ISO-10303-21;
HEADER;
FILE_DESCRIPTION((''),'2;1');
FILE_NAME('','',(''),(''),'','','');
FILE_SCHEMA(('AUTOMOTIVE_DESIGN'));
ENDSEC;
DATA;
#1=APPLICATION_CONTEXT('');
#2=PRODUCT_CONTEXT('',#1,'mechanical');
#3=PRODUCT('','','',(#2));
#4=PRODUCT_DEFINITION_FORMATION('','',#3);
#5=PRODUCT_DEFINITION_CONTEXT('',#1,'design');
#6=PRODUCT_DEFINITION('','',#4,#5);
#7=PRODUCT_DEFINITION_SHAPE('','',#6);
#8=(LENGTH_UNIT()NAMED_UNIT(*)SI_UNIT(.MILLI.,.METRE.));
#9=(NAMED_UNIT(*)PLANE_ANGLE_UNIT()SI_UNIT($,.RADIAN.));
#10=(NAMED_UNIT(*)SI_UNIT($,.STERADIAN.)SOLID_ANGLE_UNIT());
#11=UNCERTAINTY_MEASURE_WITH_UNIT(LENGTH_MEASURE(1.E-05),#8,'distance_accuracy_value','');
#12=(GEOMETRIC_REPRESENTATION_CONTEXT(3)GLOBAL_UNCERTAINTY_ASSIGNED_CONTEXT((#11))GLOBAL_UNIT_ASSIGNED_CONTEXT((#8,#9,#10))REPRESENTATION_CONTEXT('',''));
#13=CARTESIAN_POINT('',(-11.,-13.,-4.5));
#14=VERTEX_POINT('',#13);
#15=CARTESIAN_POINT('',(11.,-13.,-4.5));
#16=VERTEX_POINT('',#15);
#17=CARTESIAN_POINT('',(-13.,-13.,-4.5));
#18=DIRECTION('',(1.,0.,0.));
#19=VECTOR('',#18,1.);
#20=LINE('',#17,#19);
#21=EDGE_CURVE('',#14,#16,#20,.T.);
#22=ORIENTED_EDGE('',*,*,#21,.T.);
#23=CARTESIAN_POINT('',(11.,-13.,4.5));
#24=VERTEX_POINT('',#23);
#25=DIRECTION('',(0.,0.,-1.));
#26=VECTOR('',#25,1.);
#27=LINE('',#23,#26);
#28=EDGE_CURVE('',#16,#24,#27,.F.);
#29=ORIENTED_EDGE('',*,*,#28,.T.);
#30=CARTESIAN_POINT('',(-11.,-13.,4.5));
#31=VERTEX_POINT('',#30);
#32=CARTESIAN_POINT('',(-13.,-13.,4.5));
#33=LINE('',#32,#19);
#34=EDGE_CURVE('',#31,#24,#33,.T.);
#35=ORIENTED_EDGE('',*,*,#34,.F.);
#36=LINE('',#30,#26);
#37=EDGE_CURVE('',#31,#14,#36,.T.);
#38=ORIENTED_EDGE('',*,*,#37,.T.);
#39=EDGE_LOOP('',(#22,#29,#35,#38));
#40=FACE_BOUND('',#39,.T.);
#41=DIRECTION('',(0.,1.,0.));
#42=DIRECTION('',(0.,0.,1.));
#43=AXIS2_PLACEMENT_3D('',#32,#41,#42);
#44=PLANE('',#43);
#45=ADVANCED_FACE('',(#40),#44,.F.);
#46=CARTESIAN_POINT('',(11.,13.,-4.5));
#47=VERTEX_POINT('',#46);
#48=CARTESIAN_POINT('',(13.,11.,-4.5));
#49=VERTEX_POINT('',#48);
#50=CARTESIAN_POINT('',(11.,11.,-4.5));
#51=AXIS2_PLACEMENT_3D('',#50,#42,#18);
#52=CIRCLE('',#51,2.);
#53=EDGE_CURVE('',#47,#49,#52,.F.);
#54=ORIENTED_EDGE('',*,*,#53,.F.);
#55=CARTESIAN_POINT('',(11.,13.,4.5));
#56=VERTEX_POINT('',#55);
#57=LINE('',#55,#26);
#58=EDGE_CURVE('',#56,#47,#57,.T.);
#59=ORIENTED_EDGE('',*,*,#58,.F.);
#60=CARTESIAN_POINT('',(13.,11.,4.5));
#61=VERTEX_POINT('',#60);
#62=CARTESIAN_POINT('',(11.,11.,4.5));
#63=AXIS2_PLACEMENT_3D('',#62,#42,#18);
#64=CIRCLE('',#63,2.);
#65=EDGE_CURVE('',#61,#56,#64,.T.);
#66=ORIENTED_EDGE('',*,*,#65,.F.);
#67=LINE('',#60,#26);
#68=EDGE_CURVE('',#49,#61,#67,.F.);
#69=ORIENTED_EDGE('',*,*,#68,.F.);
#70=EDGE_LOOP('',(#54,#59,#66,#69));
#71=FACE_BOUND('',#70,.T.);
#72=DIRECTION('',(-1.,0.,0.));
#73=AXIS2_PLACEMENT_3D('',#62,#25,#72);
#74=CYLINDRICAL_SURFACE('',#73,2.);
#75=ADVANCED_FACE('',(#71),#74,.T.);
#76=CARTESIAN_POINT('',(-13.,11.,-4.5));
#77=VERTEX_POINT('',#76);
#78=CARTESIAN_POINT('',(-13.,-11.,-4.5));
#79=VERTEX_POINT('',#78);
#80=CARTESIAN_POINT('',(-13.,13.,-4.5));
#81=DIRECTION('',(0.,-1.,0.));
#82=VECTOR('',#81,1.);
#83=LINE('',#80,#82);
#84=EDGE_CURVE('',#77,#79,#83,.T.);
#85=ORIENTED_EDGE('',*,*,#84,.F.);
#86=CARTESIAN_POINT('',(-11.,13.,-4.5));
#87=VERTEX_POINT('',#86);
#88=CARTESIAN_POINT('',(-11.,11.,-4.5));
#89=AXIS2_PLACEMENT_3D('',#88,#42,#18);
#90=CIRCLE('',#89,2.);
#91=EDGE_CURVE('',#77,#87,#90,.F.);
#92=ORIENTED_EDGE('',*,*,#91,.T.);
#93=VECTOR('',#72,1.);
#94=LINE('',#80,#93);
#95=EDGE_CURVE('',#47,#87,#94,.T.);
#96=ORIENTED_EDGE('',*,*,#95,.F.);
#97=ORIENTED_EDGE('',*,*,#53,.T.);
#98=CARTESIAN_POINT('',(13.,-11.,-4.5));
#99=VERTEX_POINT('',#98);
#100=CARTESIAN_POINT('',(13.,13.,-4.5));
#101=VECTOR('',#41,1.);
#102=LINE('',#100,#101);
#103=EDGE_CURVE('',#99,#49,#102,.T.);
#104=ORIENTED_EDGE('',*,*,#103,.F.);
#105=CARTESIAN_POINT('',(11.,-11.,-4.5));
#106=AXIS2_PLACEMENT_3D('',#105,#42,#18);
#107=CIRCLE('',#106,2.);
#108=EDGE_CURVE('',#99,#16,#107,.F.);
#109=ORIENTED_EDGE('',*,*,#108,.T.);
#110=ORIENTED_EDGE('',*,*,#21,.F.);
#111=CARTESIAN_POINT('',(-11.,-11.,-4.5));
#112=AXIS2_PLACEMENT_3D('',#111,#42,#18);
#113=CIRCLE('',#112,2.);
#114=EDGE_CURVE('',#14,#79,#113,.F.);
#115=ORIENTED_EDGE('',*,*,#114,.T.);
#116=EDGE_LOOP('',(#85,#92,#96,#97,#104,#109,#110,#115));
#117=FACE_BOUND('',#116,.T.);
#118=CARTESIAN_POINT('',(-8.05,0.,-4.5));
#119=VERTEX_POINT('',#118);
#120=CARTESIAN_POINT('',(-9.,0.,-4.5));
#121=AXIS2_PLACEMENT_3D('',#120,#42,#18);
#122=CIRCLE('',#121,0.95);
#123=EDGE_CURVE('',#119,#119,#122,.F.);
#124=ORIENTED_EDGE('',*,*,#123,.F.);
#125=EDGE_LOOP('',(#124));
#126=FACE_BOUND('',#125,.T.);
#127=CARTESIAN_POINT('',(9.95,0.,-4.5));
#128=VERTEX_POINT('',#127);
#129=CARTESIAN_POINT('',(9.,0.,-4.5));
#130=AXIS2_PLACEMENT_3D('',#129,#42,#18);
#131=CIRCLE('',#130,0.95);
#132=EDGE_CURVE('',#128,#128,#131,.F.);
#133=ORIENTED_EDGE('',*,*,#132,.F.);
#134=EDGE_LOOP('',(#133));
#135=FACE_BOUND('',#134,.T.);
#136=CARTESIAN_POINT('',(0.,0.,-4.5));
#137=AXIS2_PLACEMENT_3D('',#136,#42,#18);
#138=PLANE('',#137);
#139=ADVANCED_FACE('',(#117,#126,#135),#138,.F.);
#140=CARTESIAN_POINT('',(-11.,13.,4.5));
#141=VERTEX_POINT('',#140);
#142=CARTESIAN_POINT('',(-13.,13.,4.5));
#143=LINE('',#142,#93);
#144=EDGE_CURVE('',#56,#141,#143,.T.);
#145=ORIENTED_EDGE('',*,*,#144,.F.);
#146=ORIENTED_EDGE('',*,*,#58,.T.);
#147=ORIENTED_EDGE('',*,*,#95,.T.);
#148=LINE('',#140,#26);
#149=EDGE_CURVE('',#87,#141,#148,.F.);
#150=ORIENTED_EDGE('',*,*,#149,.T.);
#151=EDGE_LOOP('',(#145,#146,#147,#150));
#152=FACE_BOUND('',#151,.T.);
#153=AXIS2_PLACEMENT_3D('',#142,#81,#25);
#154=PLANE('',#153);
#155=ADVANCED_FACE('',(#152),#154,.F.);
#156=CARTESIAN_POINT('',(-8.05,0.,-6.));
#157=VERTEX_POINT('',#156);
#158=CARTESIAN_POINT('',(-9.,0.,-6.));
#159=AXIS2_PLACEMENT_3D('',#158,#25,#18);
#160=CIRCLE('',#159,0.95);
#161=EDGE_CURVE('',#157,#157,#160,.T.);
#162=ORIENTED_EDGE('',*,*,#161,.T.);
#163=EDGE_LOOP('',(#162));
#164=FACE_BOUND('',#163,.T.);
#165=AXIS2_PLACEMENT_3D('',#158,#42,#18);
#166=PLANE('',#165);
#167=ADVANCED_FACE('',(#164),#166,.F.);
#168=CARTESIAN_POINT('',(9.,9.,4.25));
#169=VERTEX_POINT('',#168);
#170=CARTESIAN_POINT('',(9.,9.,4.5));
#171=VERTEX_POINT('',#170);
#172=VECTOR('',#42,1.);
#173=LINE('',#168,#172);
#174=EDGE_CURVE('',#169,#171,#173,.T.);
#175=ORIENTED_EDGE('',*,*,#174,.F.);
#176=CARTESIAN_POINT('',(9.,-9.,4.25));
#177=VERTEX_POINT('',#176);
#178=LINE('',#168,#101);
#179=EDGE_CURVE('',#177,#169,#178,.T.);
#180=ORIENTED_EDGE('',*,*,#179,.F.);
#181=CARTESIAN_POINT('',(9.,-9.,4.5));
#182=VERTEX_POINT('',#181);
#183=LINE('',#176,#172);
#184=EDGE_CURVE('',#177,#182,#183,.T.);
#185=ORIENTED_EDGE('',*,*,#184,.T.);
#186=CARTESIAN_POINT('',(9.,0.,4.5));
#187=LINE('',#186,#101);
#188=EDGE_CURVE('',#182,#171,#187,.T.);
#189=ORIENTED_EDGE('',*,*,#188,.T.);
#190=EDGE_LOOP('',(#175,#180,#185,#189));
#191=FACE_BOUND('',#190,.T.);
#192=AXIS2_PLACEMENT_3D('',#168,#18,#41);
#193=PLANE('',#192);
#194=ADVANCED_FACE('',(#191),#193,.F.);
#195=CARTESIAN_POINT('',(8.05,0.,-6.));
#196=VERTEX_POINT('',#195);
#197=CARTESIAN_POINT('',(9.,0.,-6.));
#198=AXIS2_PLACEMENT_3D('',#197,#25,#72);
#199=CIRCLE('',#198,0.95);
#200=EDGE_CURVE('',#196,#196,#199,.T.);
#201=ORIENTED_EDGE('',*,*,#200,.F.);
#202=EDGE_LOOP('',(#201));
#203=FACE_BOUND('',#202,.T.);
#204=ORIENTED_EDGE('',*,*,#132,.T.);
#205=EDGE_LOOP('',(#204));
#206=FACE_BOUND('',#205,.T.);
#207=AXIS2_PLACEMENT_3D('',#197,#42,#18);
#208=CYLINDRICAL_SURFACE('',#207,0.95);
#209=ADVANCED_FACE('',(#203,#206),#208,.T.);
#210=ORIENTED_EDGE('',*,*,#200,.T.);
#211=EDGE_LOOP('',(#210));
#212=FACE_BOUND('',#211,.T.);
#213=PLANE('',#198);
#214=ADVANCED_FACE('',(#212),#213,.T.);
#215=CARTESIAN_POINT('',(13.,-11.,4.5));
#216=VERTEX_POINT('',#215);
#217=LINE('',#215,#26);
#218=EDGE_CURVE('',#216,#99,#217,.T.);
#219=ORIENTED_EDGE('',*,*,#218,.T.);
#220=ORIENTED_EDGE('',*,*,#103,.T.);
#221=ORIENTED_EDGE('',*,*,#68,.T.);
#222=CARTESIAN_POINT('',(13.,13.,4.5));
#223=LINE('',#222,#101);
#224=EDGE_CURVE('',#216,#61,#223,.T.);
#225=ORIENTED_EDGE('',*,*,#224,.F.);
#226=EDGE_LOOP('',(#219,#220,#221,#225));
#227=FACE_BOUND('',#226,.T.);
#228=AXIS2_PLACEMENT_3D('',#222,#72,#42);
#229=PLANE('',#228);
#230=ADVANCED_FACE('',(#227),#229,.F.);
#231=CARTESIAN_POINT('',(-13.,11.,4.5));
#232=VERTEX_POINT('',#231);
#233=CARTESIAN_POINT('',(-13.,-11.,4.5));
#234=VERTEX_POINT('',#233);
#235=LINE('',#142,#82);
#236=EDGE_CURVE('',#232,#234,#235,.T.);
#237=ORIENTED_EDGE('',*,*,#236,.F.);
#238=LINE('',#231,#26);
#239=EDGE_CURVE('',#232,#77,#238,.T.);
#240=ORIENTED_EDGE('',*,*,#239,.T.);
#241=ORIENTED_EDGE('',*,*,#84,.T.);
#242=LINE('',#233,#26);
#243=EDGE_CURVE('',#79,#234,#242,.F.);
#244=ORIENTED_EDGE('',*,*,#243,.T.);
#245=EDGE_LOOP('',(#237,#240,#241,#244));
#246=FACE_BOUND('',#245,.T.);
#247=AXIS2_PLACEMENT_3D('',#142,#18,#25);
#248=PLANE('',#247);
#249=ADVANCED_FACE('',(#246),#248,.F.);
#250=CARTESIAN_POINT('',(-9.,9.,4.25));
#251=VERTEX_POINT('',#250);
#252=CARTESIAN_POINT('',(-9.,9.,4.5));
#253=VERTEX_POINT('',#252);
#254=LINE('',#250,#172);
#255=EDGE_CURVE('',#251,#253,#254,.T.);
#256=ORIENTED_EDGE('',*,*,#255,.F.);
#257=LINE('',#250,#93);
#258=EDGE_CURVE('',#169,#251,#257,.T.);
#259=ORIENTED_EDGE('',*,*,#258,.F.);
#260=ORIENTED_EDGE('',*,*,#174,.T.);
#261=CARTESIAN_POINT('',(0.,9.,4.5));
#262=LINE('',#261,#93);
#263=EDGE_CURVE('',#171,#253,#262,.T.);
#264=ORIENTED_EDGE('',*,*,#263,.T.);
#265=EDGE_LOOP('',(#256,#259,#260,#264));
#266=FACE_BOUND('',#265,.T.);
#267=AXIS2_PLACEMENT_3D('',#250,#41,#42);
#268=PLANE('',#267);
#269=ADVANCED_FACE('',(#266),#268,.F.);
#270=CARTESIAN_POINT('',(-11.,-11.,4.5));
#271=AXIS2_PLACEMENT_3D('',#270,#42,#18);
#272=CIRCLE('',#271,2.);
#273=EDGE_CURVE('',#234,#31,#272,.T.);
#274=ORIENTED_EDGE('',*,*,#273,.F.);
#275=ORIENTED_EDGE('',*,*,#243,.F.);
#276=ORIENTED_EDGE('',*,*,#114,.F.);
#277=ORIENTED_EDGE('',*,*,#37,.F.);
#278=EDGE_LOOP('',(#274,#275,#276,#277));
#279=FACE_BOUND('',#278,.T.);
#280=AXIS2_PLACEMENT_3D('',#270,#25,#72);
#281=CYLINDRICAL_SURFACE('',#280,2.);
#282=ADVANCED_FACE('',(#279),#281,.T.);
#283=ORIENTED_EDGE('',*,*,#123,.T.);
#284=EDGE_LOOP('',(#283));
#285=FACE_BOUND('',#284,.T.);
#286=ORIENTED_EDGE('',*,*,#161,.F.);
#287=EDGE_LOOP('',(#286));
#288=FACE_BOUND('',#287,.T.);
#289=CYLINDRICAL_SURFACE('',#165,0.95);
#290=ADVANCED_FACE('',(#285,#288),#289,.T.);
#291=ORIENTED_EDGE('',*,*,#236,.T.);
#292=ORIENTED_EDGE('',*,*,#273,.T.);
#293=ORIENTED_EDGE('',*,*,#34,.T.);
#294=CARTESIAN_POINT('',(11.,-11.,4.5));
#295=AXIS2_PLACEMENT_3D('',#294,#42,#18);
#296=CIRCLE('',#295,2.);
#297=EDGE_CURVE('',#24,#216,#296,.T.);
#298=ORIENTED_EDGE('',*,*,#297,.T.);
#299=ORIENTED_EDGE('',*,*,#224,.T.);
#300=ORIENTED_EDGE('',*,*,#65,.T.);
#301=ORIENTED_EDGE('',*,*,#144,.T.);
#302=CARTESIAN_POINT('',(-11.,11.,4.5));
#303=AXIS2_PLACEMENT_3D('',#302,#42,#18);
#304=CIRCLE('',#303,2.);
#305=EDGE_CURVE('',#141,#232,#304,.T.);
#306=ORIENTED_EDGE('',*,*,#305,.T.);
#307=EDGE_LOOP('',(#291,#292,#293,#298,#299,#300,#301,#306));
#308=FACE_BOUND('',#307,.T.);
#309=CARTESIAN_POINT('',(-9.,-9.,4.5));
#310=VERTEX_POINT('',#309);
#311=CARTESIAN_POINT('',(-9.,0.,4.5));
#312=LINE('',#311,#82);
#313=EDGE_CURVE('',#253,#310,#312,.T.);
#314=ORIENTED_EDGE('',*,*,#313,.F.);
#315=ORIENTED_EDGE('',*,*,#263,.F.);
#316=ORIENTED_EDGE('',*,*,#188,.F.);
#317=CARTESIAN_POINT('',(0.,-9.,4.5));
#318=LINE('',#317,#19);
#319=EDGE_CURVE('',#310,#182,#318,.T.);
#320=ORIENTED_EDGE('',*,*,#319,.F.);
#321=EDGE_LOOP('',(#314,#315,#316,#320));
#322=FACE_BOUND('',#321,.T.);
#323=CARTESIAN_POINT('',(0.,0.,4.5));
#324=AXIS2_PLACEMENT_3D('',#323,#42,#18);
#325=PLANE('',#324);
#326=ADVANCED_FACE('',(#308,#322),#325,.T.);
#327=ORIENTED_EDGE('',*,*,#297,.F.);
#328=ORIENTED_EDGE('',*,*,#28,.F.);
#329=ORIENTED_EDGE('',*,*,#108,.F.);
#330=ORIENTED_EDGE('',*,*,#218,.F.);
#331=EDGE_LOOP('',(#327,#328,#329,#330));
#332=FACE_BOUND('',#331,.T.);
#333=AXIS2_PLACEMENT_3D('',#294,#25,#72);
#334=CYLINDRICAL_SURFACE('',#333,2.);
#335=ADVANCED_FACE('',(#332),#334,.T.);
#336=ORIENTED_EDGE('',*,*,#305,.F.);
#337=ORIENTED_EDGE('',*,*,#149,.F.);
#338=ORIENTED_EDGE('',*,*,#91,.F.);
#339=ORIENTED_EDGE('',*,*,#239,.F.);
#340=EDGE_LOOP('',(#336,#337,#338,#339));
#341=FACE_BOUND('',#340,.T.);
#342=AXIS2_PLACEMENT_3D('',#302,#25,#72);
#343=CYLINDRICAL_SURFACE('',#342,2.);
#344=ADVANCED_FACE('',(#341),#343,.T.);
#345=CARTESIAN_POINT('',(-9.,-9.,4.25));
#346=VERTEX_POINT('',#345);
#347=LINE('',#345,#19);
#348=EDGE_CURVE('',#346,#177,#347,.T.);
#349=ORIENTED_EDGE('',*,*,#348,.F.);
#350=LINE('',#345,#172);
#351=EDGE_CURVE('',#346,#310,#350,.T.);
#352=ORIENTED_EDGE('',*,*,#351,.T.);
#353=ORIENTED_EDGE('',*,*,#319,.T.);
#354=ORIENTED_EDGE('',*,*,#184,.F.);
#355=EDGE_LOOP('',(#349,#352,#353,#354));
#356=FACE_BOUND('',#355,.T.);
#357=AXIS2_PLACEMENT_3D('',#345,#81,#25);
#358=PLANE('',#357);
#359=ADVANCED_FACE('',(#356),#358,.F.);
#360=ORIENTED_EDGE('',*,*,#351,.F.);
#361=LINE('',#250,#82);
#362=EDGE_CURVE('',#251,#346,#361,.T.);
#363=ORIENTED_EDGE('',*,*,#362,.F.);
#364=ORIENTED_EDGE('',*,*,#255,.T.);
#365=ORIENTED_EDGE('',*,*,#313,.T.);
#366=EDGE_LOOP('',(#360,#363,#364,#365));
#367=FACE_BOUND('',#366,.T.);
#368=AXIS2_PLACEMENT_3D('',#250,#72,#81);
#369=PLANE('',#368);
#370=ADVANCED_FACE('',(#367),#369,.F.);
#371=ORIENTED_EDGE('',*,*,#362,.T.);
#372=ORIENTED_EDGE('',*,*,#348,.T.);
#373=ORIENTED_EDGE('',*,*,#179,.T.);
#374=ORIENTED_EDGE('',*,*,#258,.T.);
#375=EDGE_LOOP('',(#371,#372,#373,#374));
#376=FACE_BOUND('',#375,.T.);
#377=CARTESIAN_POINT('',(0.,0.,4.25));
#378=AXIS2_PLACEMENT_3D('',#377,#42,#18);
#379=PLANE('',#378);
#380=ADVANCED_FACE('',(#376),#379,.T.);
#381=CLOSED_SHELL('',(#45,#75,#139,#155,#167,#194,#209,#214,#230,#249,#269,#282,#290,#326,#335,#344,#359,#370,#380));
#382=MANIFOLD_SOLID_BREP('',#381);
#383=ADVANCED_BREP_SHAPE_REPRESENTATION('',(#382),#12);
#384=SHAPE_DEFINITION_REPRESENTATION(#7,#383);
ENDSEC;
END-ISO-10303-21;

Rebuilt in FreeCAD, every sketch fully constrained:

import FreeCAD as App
import Part
import Sketcher
from FreeCAD import Vector
Q = App.Units.Quantity


def edges_at(feature, points):
    """Names of the edges that pass closest to the given points."""
    edges = feature.Shape.Edges
    near = lambda p: min(range(len(edges)), key=lambda i: edges[i].distToShape(Part.Vertex(*p))[0])
    return sorted({f"Edge{near(p) + 1}" for p in points})


def add_polygon(sketch, points):
    """Adds a closed chain of lines whose ends are joined by coincident constraints."""
    first, n = sketch.GeometryCount, len(points)
    for a, b in zip(points, points[1:] + points[:1]):
        sketch.addGeometry(Part.LineSegment(App.Vector(*a, 0), App.Vector(*b, 0)), False)
    for i in range(n):
        sketch.addConstraint(Sketcher.Constraint("Coincident", first + i, 2, first + (i + 1) % n, 1))

doc = App.newDocument("Part")
body = doc.addObject("PartDesign::Body", "Body")

# Sketch on XY plane
sketch1 = body.newObject("Sketcher::SketchObject", "Sketch")
sketch1.AttachmentSupport = (doc.getObject("XY_Plane"), [""])
sketch1.MapMode = "FlatFace"
add_polygon(sketch1, [(-13, 13), (-13, -13), (13, -13), (13, 13)])  # lines 0-3
sketch1.addConstraint([
    Sketcher.Constraint("Vertical", 0),
    Sketcher.Constraint("Horizontal", 1),
    Sketcher.Constraint("Vertical", 2),
    Sketcher.Constraint("Horizontal", 3),
    Sketcher.Constraint("Symmetric", 0, 2, 2, 2, -1, 1),
    Sketcher.Constraint("Equal", 3, 0),
    Sketcher.Constraint("DistanceX", 1, 1, 1, 2, Q("26 mm")),
])
pad1 = body.newObject("PartDesign::Pad", "Pad")
pad1.Profile = sketch1
pad1.Length = 9
pad1.Midplane = True
doc.recompute()

fillet = body.newObject("PartDesign::Fillet", "Fillet")
fillet.Base = (pad1, edges_at(pad1, [
    (-13, 13, 0),
    (13, 13, 0),
    (13, -13, 0),
    (-13, -13, 0),
]))
fillet.Radius = 2

# Sketch on XY plane
sketch2 = body.newObject("Sketcher::SketchObject", "Sketch001")
sketch2.AttachmentSupport = (doc.getObject("XY_Plane"), [""])
sketch2.MapMode = "FlatFace"
sketch2.AttachmentOffset = App.Placement(Vector(0, 0, 4.5), App.Rotation())
add_polygon(sketch2, [(-9, 9), (-9, -9), (9, -9), (9, 9)])  # lines 0-3
sketch2.addConstraint([
    Sketcher.Constraint("Vertical", 0),
    Sketcher.Constraint("Horizontal", 1),
    Sketcher.Constraint("Vertical", 2),
    Sketcher.Constraint("Horizontal", 3),
    Sketcher.Constraint("Symmetric", 0, 2, 2, 2, -1, 1),
    Sketcher.Constraint("Equal", 3, 0),
    Sketcher.Constraint("DistanceX", 1, 1, 1, 2, Q("18 mm")),
])
pocket1 = body.newObject("PartDesign::Pocket", "Pocket")
pocket1.Profile = sketch2
pocket1.Length = 0.5
pocket1.Midplane = True

# Sketch on XY plane
sketch3 = body.newObject("Sketcher::SketchObject", "Sketch002")
sketch3.AttachmentSupport = (doc.getObject("XY_Plane"), [""])
sketch3.MapMode = "FlatFace"
sketch3.AttachmentOffset = App.Placement(Vector(0, 0, -4.5), App.Rotation())
sketch3.addGeometry([
    Part.Circle(Vector(9, 0, 0), Vector(0, 0, 1), 0.9),
    Part.Circle(Vector(-9, 0, 0), Vector(0, 0, 1), 0.9),
], False)
sketch3.addConstraint([
    Sketcher.Constraint("Equal", 0, 1),
    Sketcher.Constraint("Symmetric", 0, 3, 1, 3, -1, 1),
    Sketcher.Constraint("PointOnObject", 0, 3, -1),
    Sketcher.Constraint("Diameter", 0, Q("1.9 mm")),
    Sketcher.Constraint("DistanceX", -1, 1, 0, 3, Q("9 mm")),
])
pad2 = body.newObject("PartDesign::Pad", "Pad001")
pad2.Profile = sketch3
pad2.Length = 3
pad2.Midplane = True

doc.recompute()
